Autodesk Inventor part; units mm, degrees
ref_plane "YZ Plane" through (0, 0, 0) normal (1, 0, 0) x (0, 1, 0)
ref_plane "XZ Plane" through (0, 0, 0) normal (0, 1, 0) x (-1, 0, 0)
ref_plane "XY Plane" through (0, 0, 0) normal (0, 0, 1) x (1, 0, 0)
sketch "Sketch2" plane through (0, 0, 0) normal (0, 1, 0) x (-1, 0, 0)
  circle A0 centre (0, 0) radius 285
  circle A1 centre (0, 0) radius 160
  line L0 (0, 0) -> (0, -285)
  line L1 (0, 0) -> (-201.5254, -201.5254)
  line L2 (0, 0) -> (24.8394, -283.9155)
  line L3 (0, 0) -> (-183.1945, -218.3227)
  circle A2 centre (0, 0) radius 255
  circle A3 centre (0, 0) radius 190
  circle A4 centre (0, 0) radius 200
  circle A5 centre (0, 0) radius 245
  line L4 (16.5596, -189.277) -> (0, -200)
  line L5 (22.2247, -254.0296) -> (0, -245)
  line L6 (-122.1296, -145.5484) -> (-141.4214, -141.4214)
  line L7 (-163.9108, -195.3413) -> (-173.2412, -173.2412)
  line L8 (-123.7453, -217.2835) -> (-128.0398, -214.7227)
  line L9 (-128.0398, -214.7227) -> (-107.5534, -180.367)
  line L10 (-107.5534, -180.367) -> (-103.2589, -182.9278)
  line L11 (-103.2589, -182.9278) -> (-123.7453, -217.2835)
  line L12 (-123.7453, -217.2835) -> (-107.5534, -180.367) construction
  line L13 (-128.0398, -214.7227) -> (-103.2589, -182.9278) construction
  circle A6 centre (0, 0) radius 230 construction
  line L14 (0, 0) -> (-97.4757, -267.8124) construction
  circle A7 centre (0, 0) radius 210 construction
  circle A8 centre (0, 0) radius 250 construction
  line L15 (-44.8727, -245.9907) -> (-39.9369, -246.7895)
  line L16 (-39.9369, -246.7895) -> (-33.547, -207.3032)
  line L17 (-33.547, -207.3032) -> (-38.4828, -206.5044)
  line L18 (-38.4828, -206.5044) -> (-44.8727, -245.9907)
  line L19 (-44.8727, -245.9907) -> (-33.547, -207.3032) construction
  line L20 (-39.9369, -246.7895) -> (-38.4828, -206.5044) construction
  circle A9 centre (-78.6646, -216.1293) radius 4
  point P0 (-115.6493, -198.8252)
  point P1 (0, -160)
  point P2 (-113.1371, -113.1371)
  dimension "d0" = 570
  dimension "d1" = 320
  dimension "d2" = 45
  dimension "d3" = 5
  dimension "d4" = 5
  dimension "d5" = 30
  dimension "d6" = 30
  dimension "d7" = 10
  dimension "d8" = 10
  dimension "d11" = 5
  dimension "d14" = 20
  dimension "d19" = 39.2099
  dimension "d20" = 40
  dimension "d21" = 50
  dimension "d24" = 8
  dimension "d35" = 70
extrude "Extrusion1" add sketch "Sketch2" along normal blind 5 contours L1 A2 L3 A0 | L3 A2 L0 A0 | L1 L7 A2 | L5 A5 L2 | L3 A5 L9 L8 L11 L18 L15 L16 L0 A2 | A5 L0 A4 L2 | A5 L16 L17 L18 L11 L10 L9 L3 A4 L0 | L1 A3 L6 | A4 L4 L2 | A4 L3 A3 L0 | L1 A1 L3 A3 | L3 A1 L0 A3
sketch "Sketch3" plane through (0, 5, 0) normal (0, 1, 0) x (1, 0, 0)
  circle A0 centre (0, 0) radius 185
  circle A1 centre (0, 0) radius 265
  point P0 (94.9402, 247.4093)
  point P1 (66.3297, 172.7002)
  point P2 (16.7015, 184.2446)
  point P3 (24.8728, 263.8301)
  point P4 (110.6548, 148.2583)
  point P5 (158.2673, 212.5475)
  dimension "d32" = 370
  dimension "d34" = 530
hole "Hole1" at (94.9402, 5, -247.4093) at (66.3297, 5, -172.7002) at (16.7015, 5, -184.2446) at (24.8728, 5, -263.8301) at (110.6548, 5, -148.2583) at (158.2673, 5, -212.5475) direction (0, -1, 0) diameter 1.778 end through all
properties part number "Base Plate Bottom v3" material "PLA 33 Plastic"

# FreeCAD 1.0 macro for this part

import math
import FreeCAD as App
import Part
import Sketcher

V = App.Vector


def add_polygon(sketch, points):
    """Adds a closed chain of lines whose ends are joined by coincident constraints."""
    first, n = sketch.GeometryCount, len(points)
    for a, b in zip(points, points[1:] + points[:1]):
        sketch.addGeometry(Part.LineSegment(App.Vector(*a, 0), App.Vector(*b, 0)), False)
    for i in range(n):
        sketch.addConstraint(Sketcher.Constraint("Coincident", first + i, 2, first + (i + 1) % n, 1))

doc = App.newDocument("Part")
body = doc.addObject("PartDesign::Body", "Body")

# Sketch on XZ plane
sketch1 = body.newObject("Sketcher::SketchObject", "Sketch")
sketch1.AttachmentSupport = (doc.getObject("XZ_Plane"), [""])
sketch1.MapMode = "FlatFace"
sketch1.addGeometry(Part.ArcOfCircle(Part.Circle(V(0, 0, 0), V(0, 0, 1), 285), math.radians(-90), math.radians(-45)), False)  # 0
sketch1.addGeometry(Part.LineSegment(V(0, -285, 0), V(0, -245, 0)), False)  # 1
sketch1.addGeometry(Part.LineSegment(V(0, -245, 0), V(-22.2247, -254.0296, 0)), False)  # 2
sketch1.addGeometry(Part.LineSegment(V(-22.2247, -254.0296, 0), V(-16.5596, -189.277, 0)), False)  # 3
sketch1.addGeometry(Part.LineSegment(V(-16.5596, -189.277, 0), V(0, -200, 0)), False)  # 4
sketch1.addGeometry(Part.LineSegment(V(0, -200, 0), V(0, -160, 0)), False)  # 5
sketch1.addGeometry(Part.ArcOfCircle(Part.Circle(V(0, 0, 0), V(0, 0, 1), 160), math.radians(-90), math.radians(-45)), False)  # 6
sketch1.addGeometry(Part.LineSegment(V(113.137085, -113.137085, 0), V(141.4214, -141.4214, 0)), False)  # 7
sketch1.addGeometry(Part.LineSegment(V(141.4214, -141.4214, 0), V(122.1296, -145.5484, 0)), False)  # 8
sketch1.addGeometry(Part.LineSegment(V(122.1296, -145.5484, 0), V(163.9108, -195.3413, 0)), False)  # 9
sketch1.addGeometry(Part.LineSegment(V(163.9108, -195.3413, 0), V(173.2412, -173.2412, 0)), False)  # 10
sketch1.addGeometry(Part.LineSegment(V(173.2412, -173.2412, 0), V(201.5254, -201.5254, 0)), False)  # 11
add_polygon(sketch1, [(128.0398, -214.7227), (107.5534, -180.367), (103.2589, -182.9278), (123.7453, -217.2835)])  # lines 12-15
add_polygon(sketch1, [(44.8727, -245.9907), (38.4828, -206.5044), (33.547, -207.3032), (39.9369, -246.7895)])  # lines 16-19
sketch1.addGeometry(Part.Circle(V(78.6646, -216.1293, 0), V(0, 0, 1), 4), False)  # 20
sketch1.addConstraint([
    Sketcher.Constraint("Coincident", 0, 1, 1, 1),
    Sketcher.Constraint("Coincident", 1, 2, 2, 1),
    Sketcher.Constraint("Coincident", 2, 2, 3, 1),
    Sketcher.Constraint("Coincident", 3, 2, 4, 1),
    Sketcher.Constraint("Coincident", 4, 2, 5, 1),
    Sketcher.Constraint("Coincident", 5, 2, 6, 1),
    Sketcher.Constraint("Coincident", 6, 2, 7, 1),
    Sketcher.Constraint("Coincident", 7, 2, 8, 1),
    Sketcher.Constraint("Coincident", 8, 2, 9, 1),
    Sketcher.Constraint("Coincident", 9, 2, 10, 1),
    Sketcher.Constraint("Coincident", 10, 2, 11, 1),
    Sketcher.Constraint("Coincident", 11, 2, 0, 2),
    Sketcher.Constraint("Vertical", 1),
    Sketcher.Constraint("Vertical", 5),
    Sketcher.Constraint("Coincident", 0, 3, -1, 1),
    Sketcher.Constraint("Coincident", 6, 3, -1, 1),
    Sketcher.Constraint("PointOnObject", 0, 1, -2),
    Sketcher.Constraint("PointOnObject", 4, 2, -2),
    Sketcher.Constraint("Diameter", 20, 8.0),
    Sketcher.Constraint("Radius", 0, 285.0),
    Sketcher.Constraint("Radius", 6, 160.0),
    Sketcher.Constraint("DistanceY", 1, 1, 1, 2, 40.0),
    Sketcher.Constraint("DistanceY", 5, 1, 5, 2, 40.0),
    Sketcher.Constraint("Distance", 7, 40.0),
    Sketcher.Constraint("Distance", 11, 40.0),
    Sketcher.Constraint("Distance", 12, 40.0),
    Sketcher.Constraint("Distance", 13, 5.0),
    Sketcher.Constraint("Distance", 14, 40.0),
    Sketcher.Constraint("Distance", 15, 5.0),
    Sketcher.Constraint("Distance", 16, 40.0),
    Sketcher.Constraint("Distance", 17, 5.0),
    Sketcher.Constraint("Distance", 18, 40.0),
    Sketcher.Constraint("Distance", 19, 5.0),
    Sketcher.Constraint("Distance", 3, 65.0),
    Sketcher.Constraint("Distance", 9, 65.0),
    Sketcher.Constraint("DistanceY", 9, 2, 10, 2, 22.1),
    Sketcher.Constraint("DistanceY", 3, 2, 6, 2, 76.14),
    Sketcher.Constraint("DistanceY", 9, 2, 7, 2, 53.92),
    Sketcher.Constraint("DistanceX", 17, 2, 18, 2, 6.39),
    Sketcher.Constraint("Distance", 2, 23.989),
    Sketcher.Constraint("Distance", 10, 23.989),
    Sketcher.Constraint("DistanceY", 3, 2, -1, 1, 189.277),
    Sketcher.Constraint("DistanceY", 12, 2, -1, 1, 180.367),
    Sketcher.Constraint("DistanceX", -1, 1, 13, 2, 103.259),
    Sketcher.Constraint("DistanceX", -1, 1, 17, 2, 33.547),
    Sketcher.Constraint("DistanceX", 2, 2, 3, 2, 5.665),
    Sketcher.Constraint("DistanceY", 20, 3, 7, 2, 74.708),
    Sketcher.Constraint("DistanceX", 3, 2, 7, 2, 157.981),
    Sketcher.Constraint("DistanceY", 8, 2, 7, 2, 4.127),
    Sketcher.Constraint("DistanceX", 20, 3, 8, 2, 43.465),
    Sketcher.Constraint("DistanceY", 11, 2, 9, 2, 6.184),
    Sketcher.Constraint("DistanceX", 12, 2, 7, 2, 33.868),
    Sketcher.Constraint("DistanceX", 12, 2, 14, 2, 16.192),
    Sketcher.Constraint("DistanceY", 20, 3, 16, 2, 9.625),
    Sketcher.Constraint("DistanceY", 20, 3, 17, 2, 8.826),
])
pad1 = body.newObject("PartDesign::Pad", "Pad")
pad1.Profile = sketch1
pad1.Length = 5
pad1.Reversed = True

# Sketch on XZ plane
sketch2 = body.newObject("Sketcher::SketchObject", "Sketch001")
sketch2.AttachmentSupport = (doc.getObject("XZ_Plane"), [""])
sketch2.MapMode = "FlatFace"
sketch2.AttachmentOffset = App.Placement(V(0, 0, -5), App.Rotation())
sketch2.addGeometry([
    Part.Circle(V(94.9, -247.4, 0), V(0, 0, 1), 0.9),  # 0
    Part.Circle(V(66.3, -172.7, 0), V(0, 0, 1), 0.9),  # 1
    Part.Circle(V(16.7, -184.2, 0), V(0, 0, 1), 0.9),  # 2
    Part.Circle(V(24.9, -263.8, 0), V(0, 0, 1), 0.9),  # 3
    Part.Circle(V(110.7, -148.3, 0), V(0, 0, 1), 0.9),  # 4
    Part.Circle(V(158.3, -212.5, 0), V(0, 0, 1), 0.9),  # 5
], False)
sketch2.addConstraint([
    Sketcher.Constraint("Equal", 0, 1),
    Sketcher.Constraint("Equal", 1, 2),
    Sketcher.Constraint("Equal", 2, 3),
    Sketcher.Constraint("Equal", 3, 4),
    Sketcher.Constraint("Equal", 4, 5),
    Sketcher.Constraint("Diameter", 0, 1.778),
    Sketcher.Constraint("DistanceY", 3, 3, -1, 1, 263.83),
    Sketcher.Constraint("DistanceY", 3, 3, 1, 3, 91.13),
    Sketcher.Constraint("DistanceY", 0, 3, 1, 3, 74.709),
    Sketcher.Constraint("DistanceX", 3, 3, 1, 3, 41.457),
    Sketcher.Constraint("DistanceX", 1, 3, 4, 3, 44.325),
    Sketcher.Constraint("DistanceY", 1, 3, 4, 3, 24.442),
    Sketcher.Constraint("DistanceX", 0, 3, 5, 3, 63.327),
    Sketcher.Constraint("DistanceY", 5, 3, 2, 3, 28.303),
    Sketcher.Constraint("DistanceX", -1, 1, 0, 3, 94.9402),
    Sketcher.Constraint("DistanceX", -1, 1, 1, 3, 66.3297),
    Sketcher.Constraint("DistanceX", -1, 1, 2, 3, 16.7015),
    Sketcher.Constraint("DistanceY", 2, 3, -1, 1, 184.2446),
])
doc.recompute()
hole = body.newObject("PartDesign::Hole", "Hole")
hole.Profile = sketch2
hole.ThreadType = "None"
hole.Diameter = 1.778
hole.DepthType = "ThroughAll"
hole.Reversed = True

doc.recompute()
